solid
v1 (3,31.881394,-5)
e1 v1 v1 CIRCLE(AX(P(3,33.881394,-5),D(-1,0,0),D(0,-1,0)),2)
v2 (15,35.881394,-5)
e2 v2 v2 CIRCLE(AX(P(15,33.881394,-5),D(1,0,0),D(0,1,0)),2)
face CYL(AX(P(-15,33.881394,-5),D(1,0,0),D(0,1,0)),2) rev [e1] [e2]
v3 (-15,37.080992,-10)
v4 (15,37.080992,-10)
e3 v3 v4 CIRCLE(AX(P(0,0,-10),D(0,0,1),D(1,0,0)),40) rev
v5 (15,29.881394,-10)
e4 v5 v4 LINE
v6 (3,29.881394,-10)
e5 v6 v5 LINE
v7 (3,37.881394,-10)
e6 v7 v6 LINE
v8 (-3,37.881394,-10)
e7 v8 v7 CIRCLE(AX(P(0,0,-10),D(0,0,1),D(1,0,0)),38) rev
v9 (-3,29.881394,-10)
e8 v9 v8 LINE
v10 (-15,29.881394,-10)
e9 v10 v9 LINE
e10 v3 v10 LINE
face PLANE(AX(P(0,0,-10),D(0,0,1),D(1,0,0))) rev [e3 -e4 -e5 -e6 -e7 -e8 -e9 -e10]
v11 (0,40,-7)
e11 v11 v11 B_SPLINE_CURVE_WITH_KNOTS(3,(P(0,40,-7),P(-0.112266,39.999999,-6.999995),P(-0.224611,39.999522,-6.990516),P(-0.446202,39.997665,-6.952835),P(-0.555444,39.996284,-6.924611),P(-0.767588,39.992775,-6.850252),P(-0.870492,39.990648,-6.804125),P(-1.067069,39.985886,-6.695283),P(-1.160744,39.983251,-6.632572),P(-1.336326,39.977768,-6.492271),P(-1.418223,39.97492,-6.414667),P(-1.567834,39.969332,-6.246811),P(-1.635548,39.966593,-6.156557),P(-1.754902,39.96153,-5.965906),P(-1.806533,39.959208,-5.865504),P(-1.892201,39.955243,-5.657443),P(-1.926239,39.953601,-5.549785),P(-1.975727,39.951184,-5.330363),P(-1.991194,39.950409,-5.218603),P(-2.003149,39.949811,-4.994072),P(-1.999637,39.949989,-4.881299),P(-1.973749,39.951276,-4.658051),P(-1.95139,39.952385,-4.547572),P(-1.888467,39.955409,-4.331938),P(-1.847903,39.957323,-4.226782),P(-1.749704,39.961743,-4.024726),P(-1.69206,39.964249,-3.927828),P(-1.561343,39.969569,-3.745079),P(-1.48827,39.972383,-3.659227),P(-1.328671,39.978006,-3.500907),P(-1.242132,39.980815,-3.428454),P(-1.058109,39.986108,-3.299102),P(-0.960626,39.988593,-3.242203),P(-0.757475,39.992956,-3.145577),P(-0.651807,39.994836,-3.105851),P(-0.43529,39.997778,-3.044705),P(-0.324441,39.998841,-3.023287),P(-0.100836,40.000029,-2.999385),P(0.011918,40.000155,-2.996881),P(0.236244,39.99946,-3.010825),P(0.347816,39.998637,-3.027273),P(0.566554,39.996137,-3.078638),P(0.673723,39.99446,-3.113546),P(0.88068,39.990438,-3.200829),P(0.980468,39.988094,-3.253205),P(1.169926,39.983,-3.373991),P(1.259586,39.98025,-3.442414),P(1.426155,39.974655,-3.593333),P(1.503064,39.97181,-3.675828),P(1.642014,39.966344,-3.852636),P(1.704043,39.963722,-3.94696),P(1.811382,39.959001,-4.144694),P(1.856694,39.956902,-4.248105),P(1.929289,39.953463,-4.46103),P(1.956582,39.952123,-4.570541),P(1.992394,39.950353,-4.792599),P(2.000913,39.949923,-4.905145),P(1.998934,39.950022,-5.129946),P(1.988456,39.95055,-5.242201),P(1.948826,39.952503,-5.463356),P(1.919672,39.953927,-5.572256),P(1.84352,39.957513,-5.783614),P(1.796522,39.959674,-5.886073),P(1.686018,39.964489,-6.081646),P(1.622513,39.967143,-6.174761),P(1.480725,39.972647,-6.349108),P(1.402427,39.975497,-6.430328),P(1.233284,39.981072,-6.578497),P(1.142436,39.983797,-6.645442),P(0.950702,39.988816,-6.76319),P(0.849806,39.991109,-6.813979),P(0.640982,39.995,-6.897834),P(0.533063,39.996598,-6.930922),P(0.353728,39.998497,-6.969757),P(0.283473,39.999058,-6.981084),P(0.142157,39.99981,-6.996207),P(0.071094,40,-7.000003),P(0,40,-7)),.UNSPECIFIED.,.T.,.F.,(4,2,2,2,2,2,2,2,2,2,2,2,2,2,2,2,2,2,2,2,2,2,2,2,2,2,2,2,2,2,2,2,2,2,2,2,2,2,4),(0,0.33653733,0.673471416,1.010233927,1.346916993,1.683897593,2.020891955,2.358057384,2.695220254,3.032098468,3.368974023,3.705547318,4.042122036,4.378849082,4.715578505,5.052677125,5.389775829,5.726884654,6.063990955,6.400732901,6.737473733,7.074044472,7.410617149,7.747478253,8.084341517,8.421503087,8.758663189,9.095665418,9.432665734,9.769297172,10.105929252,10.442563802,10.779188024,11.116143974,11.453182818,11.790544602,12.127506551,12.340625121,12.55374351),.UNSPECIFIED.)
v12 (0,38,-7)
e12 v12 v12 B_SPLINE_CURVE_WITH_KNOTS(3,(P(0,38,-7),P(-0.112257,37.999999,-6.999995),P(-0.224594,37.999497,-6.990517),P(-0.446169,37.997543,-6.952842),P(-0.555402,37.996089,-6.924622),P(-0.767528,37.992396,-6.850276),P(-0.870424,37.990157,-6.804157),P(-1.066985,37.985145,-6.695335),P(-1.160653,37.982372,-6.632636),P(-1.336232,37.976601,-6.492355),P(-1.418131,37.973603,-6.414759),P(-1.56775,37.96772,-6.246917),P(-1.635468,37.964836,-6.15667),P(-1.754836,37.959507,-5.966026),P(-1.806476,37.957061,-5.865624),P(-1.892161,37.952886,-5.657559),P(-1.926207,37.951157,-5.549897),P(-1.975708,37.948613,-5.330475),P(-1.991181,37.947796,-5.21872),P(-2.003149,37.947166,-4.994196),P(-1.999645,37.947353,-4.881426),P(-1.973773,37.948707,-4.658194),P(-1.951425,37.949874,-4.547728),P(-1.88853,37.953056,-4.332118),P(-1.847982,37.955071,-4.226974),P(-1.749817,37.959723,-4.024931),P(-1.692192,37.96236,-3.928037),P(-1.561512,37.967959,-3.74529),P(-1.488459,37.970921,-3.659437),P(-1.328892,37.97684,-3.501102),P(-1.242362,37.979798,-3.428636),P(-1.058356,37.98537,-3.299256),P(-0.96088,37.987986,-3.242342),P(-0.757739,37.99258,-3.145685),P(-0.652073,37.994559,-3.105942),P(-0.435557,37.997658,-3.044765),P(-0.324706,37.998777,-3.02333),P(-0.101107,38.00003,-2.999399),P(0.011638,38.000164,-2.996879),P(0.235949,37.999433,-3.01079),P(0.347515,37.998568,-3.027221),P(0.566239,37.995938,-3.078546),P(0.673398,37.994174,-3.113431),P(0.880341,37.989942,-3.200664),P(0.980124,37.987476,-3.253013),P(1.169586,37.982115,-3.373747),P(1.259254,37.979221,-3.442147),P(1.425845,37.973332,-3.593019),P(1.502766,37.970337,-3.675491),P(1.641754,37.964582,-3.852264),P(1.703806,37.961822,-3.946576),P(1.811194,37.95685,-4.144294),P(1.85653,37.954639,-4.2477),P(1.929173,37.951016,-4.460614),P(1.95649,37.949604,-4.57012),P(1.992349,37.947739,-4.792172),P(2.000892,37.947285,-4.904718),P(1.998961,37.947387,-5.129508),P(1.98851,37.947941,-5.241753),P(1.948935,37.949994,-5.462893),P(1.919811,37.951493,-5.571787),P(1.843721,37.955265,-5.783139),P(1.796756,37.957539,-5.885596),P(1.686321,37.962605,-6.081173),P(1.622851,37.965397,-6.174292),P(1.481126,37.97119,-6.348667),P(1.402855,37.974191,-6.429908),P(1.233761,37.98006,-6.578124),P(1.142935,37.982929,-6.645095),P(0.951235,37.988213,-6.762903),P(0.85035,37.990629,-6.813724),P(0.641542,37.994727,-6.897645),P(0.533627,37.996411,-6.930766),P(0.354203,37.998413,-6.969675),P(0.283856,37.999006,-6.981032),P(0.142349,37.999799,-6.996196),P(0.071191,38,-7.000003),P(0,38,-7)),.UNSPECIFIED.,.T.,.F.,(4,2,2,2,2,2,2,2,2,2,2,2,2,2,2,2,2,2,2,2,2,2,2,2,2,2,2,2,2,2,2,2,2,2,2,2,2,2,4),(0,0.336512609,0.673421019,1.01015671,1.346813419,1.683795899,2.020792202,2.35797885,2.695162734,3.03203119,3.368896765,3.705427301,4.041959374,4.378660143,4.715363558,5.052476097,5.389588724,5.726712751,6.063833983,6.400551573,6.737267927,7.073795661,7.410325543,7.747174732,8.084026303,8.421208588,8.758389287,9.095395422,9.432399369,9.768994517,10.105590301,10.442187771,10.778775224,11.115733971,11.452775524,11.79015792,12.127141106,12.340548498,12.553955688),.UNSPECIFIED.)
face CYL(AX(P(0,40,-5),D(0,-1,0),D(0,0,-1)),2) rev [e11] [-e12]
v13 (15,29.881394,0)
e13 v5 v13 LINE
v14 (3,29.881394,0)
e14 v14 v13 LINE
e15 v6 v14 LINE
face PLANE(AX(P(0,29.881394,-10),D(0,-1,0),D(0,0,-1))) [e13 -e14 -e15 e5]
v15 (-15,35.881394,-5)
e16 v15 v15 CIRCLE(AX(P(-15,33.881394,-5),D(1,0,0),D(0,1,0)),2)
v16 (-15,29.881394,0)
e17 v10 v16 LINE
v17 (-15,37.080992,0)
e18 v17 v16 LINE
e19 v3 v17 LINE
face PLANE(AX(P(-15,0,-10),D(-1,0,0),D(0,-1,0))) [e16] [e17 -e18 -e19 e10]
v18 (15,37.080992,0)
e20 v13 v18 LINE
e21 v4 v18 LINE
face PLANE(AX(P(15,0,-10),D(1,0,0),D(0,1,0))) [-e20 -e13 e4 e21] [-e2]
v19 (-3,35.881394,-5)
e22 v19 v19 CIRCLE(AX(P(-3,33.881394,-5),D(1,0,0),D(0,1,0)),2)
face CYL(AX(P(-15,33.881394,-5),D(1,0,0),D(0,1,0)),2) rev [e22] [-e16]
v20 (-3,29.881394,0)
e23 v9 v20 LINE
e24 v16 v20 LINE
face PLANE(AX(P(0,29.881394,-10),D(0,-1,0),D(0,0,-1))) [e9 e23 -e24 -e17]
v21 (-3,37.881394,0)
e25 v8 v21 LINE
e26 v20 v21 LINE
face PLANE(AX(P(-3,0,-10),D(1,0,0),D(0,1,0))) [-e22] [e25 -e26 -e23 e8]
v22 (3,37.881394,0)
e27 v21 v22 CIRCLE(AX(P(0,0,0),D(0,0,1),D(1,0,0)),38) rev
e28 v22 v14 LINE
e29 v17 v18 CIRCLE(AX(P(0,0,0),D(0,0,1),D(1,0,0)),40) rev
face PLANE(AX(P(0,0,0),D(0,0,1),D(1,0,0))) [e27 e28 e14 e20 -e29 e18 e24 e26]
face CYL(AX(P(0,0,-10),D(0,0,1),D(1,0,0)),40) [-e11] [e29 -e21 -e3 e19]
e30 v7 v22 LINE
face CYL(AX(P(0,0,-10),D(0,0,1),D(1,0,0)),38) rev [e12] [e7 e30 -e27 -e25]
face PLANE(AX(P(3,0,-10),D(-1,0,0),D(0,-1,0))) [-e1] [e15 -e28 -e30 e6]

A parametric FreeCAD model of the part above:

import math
import FreeCAD as App
import Part
import Sketcher

V = App.Vector
Q = App.Units.Quantity

doc = App.newDocument("Part")
params = doc.addObject("Spreadsheet::Sheet", "Params")
for row, (alias, value) in enumerate([
    ("sketch1_radius", "40 mm"),
    ("sketch1_radius2", "38 mm"),
    ("sketch1_width", "12 mm"),
    ("sketch1_height", "8 mm"),
    ("pad1_length", "10 mm"),
    ("sketch2_diameter", "4 mm"),
    ("sketch3_diameter", "4 mm"),
], start=1):
    params.set(f"A{row}", alias)
    params.set(f"B{row}", "=" + value)
    params.setAlias(f"B{row}", alias)

body = doc.addObject("PartDesign::Body", "Body")

# Sketch on XY plane
sketch1 = doc.addObject("Sketcher::SketchObject", "Sketch")
body.addObject(sketch1)
sketch1.AttachmentSupport = (doc.XY_Plane, [""])
sketch1.MapMode = "FlatFace"
sketch1.addGeometry(Part.ArcOfCircle(Part.Circle(V(0, 0, 0), V(0, 0, 1), 40), math.radians(68), math.radians(112)), False)
sketch1.addGeometry(Part.LineSegment(V(-15, 37, 0), V(-15, 30, 0)), False)
sketch1.addGeometry(Part.LineSegment(V(-15, 30, 0), V(-3, 30, 0)), False)
sketch1.addGeometry(Part.LineSegment(V(-3, 30, 0), V(-3, 38, 0)), False)
sketch1.addGeometry(Part.ArcOfCircle(Part.Circle(V(0, 0, 0), V(0, 0, 1), 38), math.radians(85.47), math.radians(94.53)), False)
sketch1.addGeometry(Part.LineSegment(V(3, 38, 0), V(3, 30, 0)), False)
sketch1.addGeometry(Part.LineSegment(V(3, 30, 0), V(15, 30, 0)), False)
sketch1.addGeometry(Part.LineSegment(V(15, 30, 0), V(15, 37, 0)), False)
sketch1.addConstraint(Sketcher.Constraint("Coincident", 0, 2, 1, 1))
sketch1.addConstraint(Sketcher.Constraint("Coincident", 1, 2, 2, 1))
sketch1.addConstraint(Sketcher.Constraint("Coincident", 2, 2, 3, 1))
sketch1.addConstraint(Sketcher.Constraint("Coincident", 3, 2, 4, 2))
sketch1.addConstraint(Sketcher.Constraint("Coincident", 4, 1, 5, 1))
sketch1.addConstraint(Sketcher.Constraint("Coincident", 5, 2, 6, 1))
sketch1.addConstraint(Sketcher.Constraint("Coincident", 6, 2, 7, 1))
sketch1.addConstraint(Sketcher.Constraint("Coincident", 7, 2, 0, 1))
sketch1.addConstraint(Sketcher.Constraint("Vertical", 1))
sketch1.addConstraint(Sketcher.Constraint("Horizontal", 2))
sketch1.addConstraint(Sketcher.Constraint("Vertical", 3))
sketch1.addConstraint(Sketcher.Constraint("Vertical", 5))
sketch1.addConstraint(Sketcher.Constraint("Horizontal", 6))
sketch1.addConstraint(Sketcher.Constraint("Vertical", 7))
sketch1.addConstraint(Sketcher.Constraint("Coincident", 0, 3, -1, 1))
sketch1.addConstraint(Sketcher.Constraint("Coincident", 4, 3, -1, 1))
sketch1.addConstraint(Sketcher.Constraint("Symmetric", 2, 2, 5, 2, -2))
sketch1.addConstraint(Sketcher.Constraint("Horizontal", 0, 2, 7, 2))
sketch1.addConstraint(Sketcher.Constraint("Radius", 0, Q("40 mm")))
sketch1.addConstraint(Sketcher.Constraint("Radius", 4, Q("38 mm")))
sketch1.addConstraint(Sketcher.Constraint("DistanceX", 2, 1, 2, 2, Q("12 mm")))
sketch1.addConstraint(Sketcher.Constraint("DistanceY", 3, 1, 3, 2, Q("8 mm")))
sketch1.addConstraint(Sketcher.Constraint("DistanceX", 0, 2, -1, 1, Q("15 mm")))
sketch1.setExpression("Constraints[18]", "Params.sketch1_radius")
sketch1.setExpression("Constraints[19]", "Params.sketch1_radius2")
sketch1.setExpression("Constraints[20]", "Params.sketch1_width")
sketch1.setExpression("Constraints[21]", "Params.sketch1_height")
pad1 = doc.addObject("PartDesign::Pad", "Pad")
body.addObject(pad1)
pad1.Profile = sketch1
pad1.setExpression("Length", "Params.pad1_length")
pad1.Reversed = True

# Sketch on YZ plane
sketch2 = doc.addObject("Sketcher::SketchObject", "Sketch001")
body.addObject(sketch2)
sketch2.AttachmentSupport = (doc.YZ_Plane, [""])
sketch2.MapMode = "FlatFace"
sketch2.AttachmentOffset = App.Placement(V(0, 0, -3), App.Rotation())
sketch2.addGeometry(Part.Circle(V(33.9, -5, 0), V(0, 0, 1), 2), False)
sketch2.addConstraint(Sketcher.Constraint("Diameter", 0, Q("4 mm")))
sketch2.addConstraint(Sketcher.Constraint("DistanceY", 0, 3, -1, 1, Q("5 mm")))
sketch2.addConstraint(Sketcher.Constraint("DistanceX", -1, 1, 0, 3, Q("33.881394 mm")))
sketch2.setExpression("Constraints[0]", "Params.sketch2_diameter")
pocket1 = doc.addObject("PartDesign::Pocket", "Pocket")
body.addObject(pocket1)
pocket1.Profile = sketch2
pocket1.Type = "ThroughAll"
pocket1.Midplane = True

# Sketch on XZ plane
sketch3 = doc.addObject("Sketcher::SketchObject", "Sketch002")
body.addObject(sketch3)
sketch3.AttachmentSupport = (doc.XZ_Plane, [""])
sketch3.MapMode = "FlatFace"
sketch3.addGeometry(Part.Circle(V(0, -5, 0), V(0, 0, 1), 2), False)
sketch3.addConstraint(Sketcher.Constraint("PointOnObject", 0, 3, -2))
sketch3.addConstraint(Sketcher.Constraint("Diameter", 0, Q("4 mm")))
sketch3.addConstraint(Sketcher.Constraint("DistanceY", 0, 3, -1, 1, Q("5 mm")))
sketch3.setExpression("Constraints[1]", "Params.sketch3_diameter")
pocket2 = doc.addObject("PartDesign::Pocket", "Pocket001")
body.addObject(pocket2)
pocket2.Profile = sketch3
pocket2.Type = "ThroughAll"

doc.recompute()
